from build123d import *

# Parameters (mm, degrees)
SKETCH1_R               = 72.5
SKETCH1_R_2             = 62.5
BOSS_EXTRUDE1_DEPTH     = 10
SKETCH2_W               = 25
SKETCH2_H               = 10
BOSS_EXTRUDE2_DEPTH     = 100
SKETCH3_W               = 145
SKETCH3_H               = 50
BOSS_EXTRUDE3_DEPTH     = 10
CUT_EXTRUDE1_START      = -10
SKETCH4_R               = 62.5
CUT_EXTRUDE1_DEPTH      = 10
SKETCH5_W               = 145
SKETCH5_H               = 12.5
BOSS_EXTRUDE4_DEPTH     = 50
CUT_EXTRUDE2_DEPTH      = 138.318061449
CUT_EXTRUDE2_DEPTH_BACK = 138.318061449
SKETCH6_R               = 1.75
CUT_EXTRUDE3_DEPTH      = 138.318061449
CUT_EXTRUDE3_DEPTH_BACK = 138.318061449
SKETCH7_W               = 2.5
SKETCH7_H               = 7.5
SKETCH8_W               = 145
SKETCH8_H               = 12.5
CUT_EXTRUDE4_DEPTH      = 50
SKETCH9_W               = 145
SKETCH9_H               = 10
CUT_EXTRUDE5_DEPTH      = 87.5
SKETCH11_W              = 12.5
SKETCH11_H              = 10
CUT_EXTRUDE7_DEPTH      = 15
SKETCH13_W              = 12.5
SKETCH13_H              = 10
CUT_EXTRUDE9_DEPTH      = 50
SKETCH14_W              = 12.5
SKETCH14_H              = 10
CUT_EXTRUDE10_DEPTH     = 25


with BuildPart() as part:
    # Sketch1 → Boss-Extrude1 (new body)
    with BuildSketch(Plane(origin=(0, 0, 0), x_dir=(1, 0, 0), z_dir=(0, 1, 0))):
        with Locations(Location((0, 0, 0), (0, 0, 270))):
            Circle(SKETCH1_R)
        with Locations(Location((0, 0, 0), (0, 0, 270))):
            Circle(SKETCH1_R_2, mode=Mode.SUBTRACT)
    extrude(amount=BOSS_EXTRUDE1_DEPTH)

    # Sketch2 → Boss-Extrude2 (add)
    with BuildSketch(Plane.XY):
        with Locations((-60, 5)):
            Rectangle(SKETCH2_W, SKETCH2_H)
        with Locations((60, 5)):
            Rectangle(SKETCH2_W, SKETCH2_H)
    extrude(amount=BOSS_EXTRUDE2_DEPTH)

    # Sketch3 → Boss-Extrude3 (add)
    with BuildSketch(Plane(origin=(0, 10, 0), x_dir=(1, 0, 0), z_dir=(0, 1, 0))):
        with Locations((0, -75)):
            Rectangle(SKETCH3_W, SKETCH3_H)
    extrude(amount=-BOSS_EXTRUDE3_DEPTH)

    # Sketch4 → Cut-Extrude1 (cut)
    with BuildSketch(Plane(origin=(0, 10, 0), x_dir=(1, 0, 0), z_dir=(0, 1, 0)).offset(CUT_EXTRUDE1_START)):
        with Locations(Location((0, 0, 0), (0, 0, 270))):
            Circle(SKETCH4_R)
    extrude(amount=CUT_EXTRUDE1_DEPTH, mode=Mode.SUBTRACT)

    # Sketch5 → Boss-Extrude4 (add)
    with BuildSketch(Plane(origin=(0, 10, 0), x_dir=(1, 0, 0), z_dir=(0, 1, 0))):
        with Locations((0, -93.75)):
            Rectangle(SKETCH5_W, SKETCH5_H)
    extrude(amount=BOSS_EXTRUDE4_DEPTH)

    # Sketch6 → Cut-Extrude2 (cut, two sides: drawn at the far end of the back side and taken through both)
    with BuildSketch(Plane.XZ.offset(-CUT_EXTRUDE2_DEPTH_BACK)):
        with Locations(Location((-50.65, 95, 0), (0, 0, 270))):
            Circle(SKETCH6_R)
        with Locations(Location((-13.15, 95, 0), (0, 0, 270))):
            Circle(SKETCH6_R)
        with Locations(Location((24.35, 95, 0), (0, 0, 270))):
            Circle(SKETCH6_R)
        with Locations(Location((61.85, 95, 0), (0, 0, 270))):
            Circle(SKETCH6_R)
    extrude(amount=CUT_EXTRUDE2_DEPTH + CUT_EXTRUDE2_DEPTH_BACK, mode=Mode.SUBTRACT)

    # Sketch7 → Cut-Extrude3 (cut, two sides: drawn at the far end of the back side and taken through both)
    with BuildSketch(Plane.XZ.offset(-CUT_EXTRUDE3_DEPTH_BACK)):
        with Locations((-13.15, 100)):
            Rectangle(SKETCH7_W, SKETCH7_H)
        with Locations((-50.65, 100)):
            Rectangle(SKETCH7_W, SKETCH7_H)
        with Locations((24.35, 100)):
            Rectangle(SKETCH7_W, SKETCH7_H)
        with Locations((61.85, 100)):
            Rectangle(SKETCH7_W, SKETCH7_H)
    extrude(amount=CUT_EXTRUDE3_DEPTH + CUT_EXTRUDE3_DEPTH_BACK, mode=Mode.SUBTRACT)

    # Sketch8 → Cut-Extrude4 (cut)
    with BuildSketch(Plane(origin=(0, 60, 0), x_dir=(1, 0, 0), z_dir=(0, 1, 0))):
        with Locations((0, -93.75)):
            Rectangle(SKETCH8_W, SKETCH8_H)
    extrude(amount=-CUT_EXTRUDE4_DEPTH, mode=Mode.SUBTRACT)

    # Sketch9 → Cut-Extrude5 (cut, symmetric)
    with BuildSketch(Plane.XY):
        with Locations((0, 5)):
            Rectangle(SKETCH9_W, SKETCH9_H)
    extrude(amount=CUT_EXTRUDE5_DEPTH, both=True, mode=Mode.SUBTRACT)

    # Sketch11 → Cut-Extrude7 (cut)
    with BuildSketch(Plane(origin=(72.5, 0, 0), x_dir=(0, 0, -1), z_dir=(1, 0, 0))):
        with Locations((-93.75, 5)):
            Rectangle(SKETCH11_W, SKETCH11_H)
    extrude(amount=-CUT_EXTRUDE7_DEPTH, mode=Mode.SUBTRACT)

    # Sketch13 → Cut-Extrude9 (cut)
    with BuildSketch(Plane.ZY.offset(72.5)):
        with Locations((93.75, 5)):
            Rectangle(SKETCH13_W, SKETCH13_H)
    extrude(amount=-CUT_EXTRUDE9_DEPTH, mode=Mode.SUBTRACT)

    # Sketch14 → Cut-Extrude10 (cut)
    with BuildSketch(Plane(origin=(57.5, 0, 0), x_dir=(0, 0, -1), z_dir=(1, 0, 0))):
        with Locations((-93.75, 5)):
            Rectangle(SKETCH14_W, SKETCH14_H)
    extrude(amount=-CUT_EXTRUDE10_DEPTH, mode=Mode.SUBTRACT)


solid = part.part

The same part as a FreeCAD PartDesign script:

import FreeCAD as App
import Part
import Sketcher

V = App.Vector
Q = App.Units.Quantity

doc = App.newDocument("Part")
body = doc.addObject("PartDesign::Body", "Body")

# Sketch on XZ plane
sketch1 = doc.addObject("Sketcher::SketchObject", "Sketch")
body.addObject(sketch1)
sketch1.AttachmentSupport = (doc.XZ_Plane, [""])
sketch1.MapMode = "FlatFace"
sketch1.addGeometry(Part.Circle(V(0, 0, 0), V(0, 0, 1), 72), False)
sketch1.addGeometry(Part.Circle(V(0, 0, 0), V(0, 0, 1), 62), False)
sketch1.addConstraint(Sketcher.Constraint("Coincident", 0, 3, -1, 1))
sketch1.addConstraint(Sketcher.Constraint("Coincident", 1, 3, -1, 1))
sketch1.addConstraint(Sketcher.Constraint("Diameter", 0, Q("145 mm")))
sketch1.addConstraint(Sketcher.Constraint("Diameter", 1, Q("125 mm")))
pad1 = doc.addObject("PartDesign::Pad", "Pad")
body.addObject(pad1)
pad1.Profile = sketch1
pad1.Length = 10
pad1.Reversed = True

# Sketch on XY plane
sketch2 = doc.addObject("Sketcher::SketchObject", "Sketch001")
body.addObject(sketch2)
sketch2.AttachmentSupport = (doc.XY_Plane, [""])
sketch2.MapMode = "FlatFace"
sketch2.addGeometry(Part.LineSegment(V(-72, 10, 0), V(-72, 0, 0)), False)
sketch2.addGeometry(Part.LineSegment(V(-72, 0, 0), V(-48, 0, 0)), False)
sketch2.addGeometry(Part.LineSegment(V(-48, 0, 0), V(-48, 10, 0)), False)
sketch2.addGeometry(Part.LineSegment(V(-48, 10, 0), V(-72, 10, 0)), False)
sketch2.addGeometry(Part.LineSegment(V(48, 10, 0), V(48, 0, 0)), False)
sketch2.addGeometry(Part.LineSegment(V(48, 0, 0), V(72, 0, 0)), False)
sketch2.addGeometry(Part.LineSegment(V(72, 0, 0), V(72, 10, 0)), False)
sketch2.addGeometry(Part.LineSegment(V(72, 10, 0), V(48, 10, 0)), False)
sketch2.addConstraint(Sketcher.Constraint("Coincident", 0, 2, 1, 1))
sketch2.addConstraint(Sketcher.Constraint("Coincident", 1, 2, 2, 1))
sketch2.addConstraint(Sketcher.Constraint("Coincident", 2, 2, 3, 1))
sketch2.addConstraint(Sketcher.Constraint("Coincident", 3, 2, 0, 1))
sketch2.addConstraint(Sketcher.Constraint("Coincident", 4, 2, 5, 1))
sketch2.addConstraint(Sketcher.Constraint("Coincident", 5, 2, 6, 1))
sketch2.addConstraint(Sketcher.Constraint("Coincident", 6, 2, 7, 1))
sketch2.addConstraint(Sketcher.Constraint("Coincident", 7, 2, 4, 1))
sketch2.addConstraint(Sketcher.Constraint("Vertical", 0))
sketch2.addConstraint(Sketcher.Constraint("Horizontal", 1))
sketch2.addConstraint(Sketcher.Constraint("Vertical", 2))
sketch2.addConstraint(Sketcher.Constraint("Horizontal", 3))
sketch2.addConstraint(Sketcher.Constraint("Vertical", 4))
sketch2.addConstraint(Sketcher.Constraint("Horizontal", 5))
sketch2.addConstraint(Sketcher.Constraint("Vertical", 6))
sketch2.addConstraint(Sketcher.Constraint("Horizontal", 7))
sketch2.addConstraint(Sketcher.Constraint("Symmetric", 1, 2, 4, 2, -1, 1))
sketch2.addConstraint(Sketcher.Constraint("Symmetric", 0, 2, 5, 2, -2))
sketch2.addConstraint(Sketcher.Constraint("Horizontal", 3, 2, 6, 2))
sketch2.addConstraint(Sketcher.Constraint("DistanceX", 1, 1, 1, 2, Q("25 mm")))
sketch2.addConstraint(Sketcher.Constraint("DistanceY", 0, 2, 0, 1, Q("10 mm")))
sketch2.addConstraint(Sketcher.Constraint("DistanceX", 1, 2, 4, 2, Q("95 mm")))
pad2 = doc.addObject("PartDesign::Pad", "Pad001")
body.addObject(pad2)
pad2.Profile = sketch2
pad2.Length = 100

# Sketch on XZ plane
sketch3 = doc.addObject("Sketcher::SketchObject", "Sketch002")
body.addObject(sketch3)
sketch3.AttachmentSupport = (doc.XZ_Plane, [""])
sketch3.MapMode = "FlatFace"
sketch3.AttachmentOffset = App.Placement(V(0, 0, -10), App.Rotation())
sketch3.addGeometry(Part.LineSegment(V(-72, 50, 0), V(-72, 100, 0)), False)
sketch3.addGeometry(Part.LineSegment(V(-72, 100, 0), V(72, 100, 0)), False)
sketch3.addGeometry(Part.LineSegment(V(72, 100, 0), V(72, 50, 0)), False)
sketch3.addGeometry(Part.LineSegment(V(72, 50, 0), V(-72, 50, 0)), False)
sketch3.addConstraint(Sketcher.Constraint("Coincident", 0, 2, 1, 1))
sketch3.addConstraint(Sketcher.Constraint("Coincident", 1, 2, 2, 1))
sketch3.addConstraint(Sketcher.Constraint("Coincident", 2, 2, 3, 1))
sketch3.addConstraint(Sketcher.Constraint("Coincident", 3, 2, 0, 1))
sketch3.addConstraint(Sketcher.Constraint("Vertical", 0))
sketch3.addConstraint(Sketcher.Constraint("Horizontal", 1))
sketch3.addConstraint(Sketcher.Constraint("Vertical", 2))
sketch3.addConstraint(Sketcher.Constraint("Horizontal", 3))
sketch3.addConstraint(Sketcher.Constraint("DistanceX", 1, 1, 1, 2, Q("145 mm")))
sketch3.addConstraint(Sketcher.Constraint("DistanceY", 0, 1, 0, 2, Q("50 mm")))
sketch3.addConstraint(Sketcher.Constraint("DistanceY", -1, 1, 0, 2, Q("100 mm")))
sketch3.addConstraint(Sketcher.Constraint("DistanceX", 0, 2, -1, 1, Q("72.5 mm")))
pad3 = doc.addObject("PartDesign::Pad", "Pad002")
body.addObject(pad3)
pad3.Profile = sketch3
pad3.Length = 10

# Sketch on XZ plane
sketch4 = doc.addObject("Sketcher::SketchObject", "Sketch003")
body.addObject(sketch4)
sketch4.AttachmentSupport = (doc.XZ_Plane, [""])
sketch4.MapMode = "FlatFace"
sketch4.addGeometry(Part.Circle(V(0, 0, 0), V(0, 0, 1), 62), False)
sketch4.addConstraint(Sketcher.Constraint("Coincident", 0, 3, -1, 1))
sketch4.addConstraint(Sketcher.Constraint("Diameter", 0, Q("125 mm")))
pocket1 = doc.addObject("PartDesign::Pocket", "Pocket")
body.addObject(pocket1)
pocket1.Profile = sketch4
pocket1.Length = 10

# Sketch on XZ plane
sketch5 = doc.addObject("Sketcher::SketchObject", "Sketch004")
body.addObject(sketch5)
sketch5.AttachmentSupport = (doc.XZ_Plane, [""])
sketch5.MapMode = "FlatFace"
sketch5.AttachmentOffset = App.Placement(V(0, 0, -10), App.Rotation())
sketch5.addGeometry(Part.LineSegment(V(-72, 88, 0), V(-72, 100, 0)), False)
sketch5.addGeometry(Part.LineSegment(V(-72, 100, 0), V(72, 100, 0)), False)
sketch5.addGeometry(Part.LineSegment(V(72, 100, 0), V(72, 88, 0)), False)
sketch5.addGeometry(Part.LineSegment(V(72, 88, 0), V(-72, 88, 0)), False)
sketch5.addConstraint(Sketcher.Constraint("Coincident", 0, 2, 1, 1))
sketch5.addConstraint(Sketcher.Constraint("Coincident", 1, 2, 2, 1))
sketch5.addConstraint(Sketcher.Constraint("Coincident", 2, 2, 3, 1))
sketch5.addConstraint(Sketcher.Constraint("Coincident", 3, 2, 0, 1))
sketch5.addConstraint(Sketcher.Constraint("Vertical", 0))
sketch5.addConstraint(Sketcher.Constraint("Horizontal", 1))
sketch5.addConstraint(Sketcher.Constraint("Vertical", 2))
sketch5.addConstraint(Sketcher.Constraint("Horizontal", 3))
sketch5.addConstraint(Sketcher.Constraint("DistanceX", 1, 1, 1, 2, Q("145 mm")))
sketch5.addConstraint(Sketcher.Constraint("DistanceY", 0, 1, 0, 2, Q("12.5 mm")))
sketch5.addConstraint(Sketcher.Constraint("DistanceY", -1, 1, 0, 2, Q("100 mm")))
sketch5.addConstraint(Sketcher.Constraint("DistanceX", 0, 2, -1, 1, Q("72.5 mm")))
pad4 = doc.addObject("PartDesign::Pad", "Pad003")
body.addObject(pad4)
pad4.Profile = sketch5
pad4.Length = 50
pad4.Reversed = True

# Sketch on XZ plane
sketch6 = doc.addObject("Sketcher::SketchObject", "Sketch005")
body.addObject(sketch6)
sketch6.AttachmentSupport = (doc.XZ_Plane, [""])
sketch6.MapMode = "FlatFace"
sketch6.addGeometry(Part.Circle(V(-50.6, 95, 0), V(0, 0, 1), 1.8), False)
sketch6.addGeometry(Part.Circle(V(-13.2, 95, 0), V(0, 0, 1), 1.8), False)
sketch6.addGeometry(Part.Circle(V(24.4, 95, 0), V(0, 0, 1), 1.8), False)
sketch6.addGeometry(Part.Circle(V(61.9, 95, 0), V(0, 0, 1), 1.8), False)
sketch6.addConstraint(Sketcher.Constraint("Equal", 0, 1))
sketch6.addConstraint(Sketcher.Constraint("Equal", 1, 2))
sketch6.addConstraint(Sketcher.Constraint("Equal", 2, 3))
sketch6.addConstraint(Sketcher.Constraint("Horizontal", 0, 3, 1, 3))
sketch6.addConstraint(Sketcher.Constraint("Horizontal", 1, 3, 2, 3))
sketch6.addConstraint(Sketcher.Constraint("Horizontal", 2, 3, 3, 3))
sketch6.addConstraint(Sketcher.Constraint("Diameter", 0, Q("3.5 mm")))
sketch6.addConstraint(Sketcher.Constraint("DistanceY", -1, 1, 0, 3, Q("95 mm")))
sketch6.addConstraint(Sketcher.Constraint("DistanceX", 0, 3, 2, 3, Q("75 mm")))
sketch6.addConstraint(Sketcher.Constraint("DistanceX", 1, 3, 3, 3, Q("75 mm")))
sketch6.addConstraint(Sketcher.Constraint("DistanceX", 0, 3, 1, 3, Q("37.5 mm")))
sketch6.addConstraint(Sketcher.Constraint("DistanceX", 0, 3, -1, 1, Q("50.65 mm")))
pocket2 = doc.addObject("PartDesign::Pocket", "Pocket001")
body.addObject(pocket2)
pocket2.Profile = sketch6
pocket2.Type = "ThroughAll"
pocket2.Midplane = True

# Sketch on XZ plane
sketch7 = doc.addObject("Sketcher::SketchObject", "Sketch006")
body.addObject(sketch7)
sketch7.AttachmentSupport = (doc.XZ_Plane, [""])
sketch7.MapMode = "FlatFace"
sketch7.addGeometry(Part.LineSegment(V(-14.4, 103.8, 0), V(-14.4, 96.2, 0)), False)
sketch7.addGeometry(Part.LineSegment(V(-14.4, 96.2, 0), V(-11.9, 96.2, 0)), False)
sketch7.addGeometry(Part.LineSegment(V(-11.9, 96.2, 0), V(-11.9, 103.8, 0)), False)
sketch7.addGeometry(Part.LineSegment(V(-11.9, 103.8, 0), V(-14.4, 103.8, 0)), False)
sketch7.addGeometry(Part.LineSegment(V(-51.9, 103.8, 0), V(-51.9, 96.2, 0)), False)
sketch7.addGeometry(Part.LineSegment(V(-51.9, 96.2, 0), V(-49.4, 96.2, 0)), False)
sketch7.addGeometry(Part.LineSegment(V(-49.4, 96.2, 0), V(-49.4, 103.8, 0)), False)
sketch7.addGeometry(Part.LineSegment(V(-49.4, 103.8, 0), V(-51.9, 103.8, 0)), False)
sketch7.addGeometry(Part.LineSegment(V(23.1, 103.8, 0), V(23.1, 96.2, 0)), False)
sketch7.addGeometry(Part.LineSegment(V(23.1, 96.2, 0), V(25.6, 96.2, 0)), False)
sketch7.addGeometry(Part.LineSegment(V(25.6, 96.2, 0), V(25.6, 103.8, 0)), False)
sketch7.addGeometry(Part.LineSegment(V(25.6, 103.8, 0), V(23.1, 103.8, 0)), False)
sketch7.addGeometry(Part.LineSegment(V(60.6, 103.8, 0), V(60.6, 96.2, 0)), False)
sketch7.addGeometry(Part.LineSegment(V(60.6, 96.2, 0), V(63.1, 96.2, 0)), False)
sketch7.addGeometry(Part.LineSegment(V(63.1, 96.2, 0), V(63.1, 103.8, 0)), False)
sketch7.addGeometry(Part.LineSegment(V(63.1, 103.8, 0), V(60.6, 103.8, 0)), False)
sketch7.addConstraint(Sketcher.Constraint("Coincident", 0, 2, 1, 1))
sketch7.addConstraint(Sketcher.Constraint("Coincident", 1, 2, 2, 1))
sketch7.addConstraint(Sketcher.Constraint("Coincident", 2, 2, 3, 1))
sketch7.addConstraint(Sketcher.Constraint("Coincident", 3, 2, 0, 1))
sketch7.addConstraint(Sketcher.Constraint("Coincident", 4, 2, 5, 1))
sketch7.addConstraint(Sketcher.Constraint("Coincident", 5, 2, 6, 1))
sketch7.addConstraint(Sketcher.Constraint("Coincident", 6, 2, 7, 1))
sketch7.addConstraint(Sketcher.Constraint("Coincident", 7, 2, 4, 1))
sketch7.addConstraint(Sketcher.Constraint("Coincident", 8, 2, 9, 1))
sketch7.addConstraint(Sketcher.Constraint("Coincident", 9, 2, 10, 1))
sketch7.addConstraint(Sketcher.Constraint("Coincident", 10, 2, 11, 1))
sketch7.addConstraint(Sketcher.Constraint("Coincident", 11, 2, 8, 1))
sketch7.addConstraint(Sketcher.Constraint("Coincident", 12, 2, 13, 1))
sketch7.addConstraint(Sketcher.Constraint("Coincident", 13, 2, 14, 1))
sketch7.addConstraint(Sketcher.Constraint("Coincident", 14, 2, 15, 1))
sketch7.addConstraint(Sketcher.Constraint("Coincident", 15, 2, 12, 1))
sketch7.addConstraint(Sketcher.Constraint("Vertical", 0))
sketch7.addConstraint(Sketcher.Constraint("Horizontal", 1))
sketch7.addConstraint(Sketcher.Constraint("Vertical", 2))
sketch7.addConstraint(Sketcher.Constraint("Horizontal", 3))
sketch7.addConstraint(Sketcher.Constraint("Vertical", 4))
sketch7.addConstraint(Sketcher.Constraint("Horizontal", 5))
sketch7.addConstraint(Sketcher.Constraint("Vertical", 6))
sketch7.addConstraint(Sketcher.Constraint("Horizontal", 7))
sketch7.addConstraint(Sketcher.Constraint("Vertical", 8))
sketch7.addConstraint(Sketcher.Constraint("Horizontal", 9))
sketch7.addConstraint(Sketcher.Constraint("Vertical", 10))
sketch7.addConstraint(Sketcher.Constraint("Horizontal", 11))
sketch7.addConstraint(Sketcher.Constraint("Vertical", 12))
sketch7.addConstraint(Sketcher.Constraint("Horizontal", 13))
sketch7.addConstraint(Sketcher.Constraint("Vertical", 14))
sketch7.addConstraint(Sketcher.Constraint("Horizontal", 15))
sketch7.addConstraint(Sketcher.Constraint("Horizontal", 1, 2, 4, 2))
sketch7.addConstraint(Sketcher.Constraint("Horizontal", 3, 2, 6, 2))
sketch7.addConstraint(Sketcher.Constraint("Horizontal", 5, 2, 8, 2))
sketch7.addConstraint(Sketcher.Constraint("Horizontal", 7, 2, 10, 2))
sketch7.addConstraint(Sketcher.Constraint("Horizontal", 9, 2, 12, 2))
sketch7.addConstraint(Sketcher.Constraint("Horizontal", 11, 2, 14, 2))
sketch7.addConstraint(Sketcher.Constraint("Equal", 3, 5))
sketch7.addConstraint(Sketcher.Constraint("Equal", 7, 9))
sketch7.addConstraint(Sketcher.Constraint("Equal", 11, 13))
sketch7.addConstraint(Sketcher.Constraint("DistanceX", 1, 1, 1, 2, Q("2.5 mm")))
sketch7.addConstraint(Sketcher.Constraint("DistanceY", 0, 2, 0, 1, Q("7.5 mm")))
sketch7.addConstraint(Sketcher.Constraint("DistanceX", 4, 2, 1, 2, Q("40 mm")))
sketch7.addConstraint(Sketcher.Constraint("DistanceX", 1, 2, 8, 2, Q("35 mm")))
sketch7.addConstraint(Sketcher.Constraint("DistanceX", 9, 2, 12, 2, Q("35 mm")))
sketch7.addConstraint(Sketcher.Constraint("DistanceX", 0, 2, -1, 1, Q("14.4 mm")))
sketch7.addConstraint(Sketcher.Constraint("DistanceY", -1, 1, 0, 2, Q("96.25 mm")))
pocket3 = doc.addObject("PartDesign::Pocket", "Pocket002")
body.addObject(pocket3)
pocket3.Profile = sketch7
pocket3.Type = "ThroughAll"
pocket3.Midplane = True

# Sketch on XZ plane
sketch8 = doc.addObject("Sketcher::SketchObject", "Sketch007")
body.addObject(sketch8)
sketch8.AttachmentSupport = (doc.XZ_Plane, [""])
sketch8.MapMode = "FlatFace"
sketch8.AttachmentOffset = App.Placement(V(0, 0, -60), App.Rotation())
sketch8.addGeometry(Part.LineSegment(V(-72, 88, 0), V(-72, 100, 0)), False)
sketch8.addGeometry(Part.LineSegment(V(-72, 100, 0), V(72, 100, 0)), False)
sketch8.addGeometry(Part.LineSegment(V(72, 100, 0), V(72, 88, 0)), False)
sketch8.addGeometry(Part.LineSegment(V(72, 88, 0), V(-72, 88, 0)), False)
sketch8.addConstraint(Sketcher.Constraint("Coincident", 0, 2, 1, 1))
sketch8.addConstraint(Sketcher.Constraint("Coincident", 1, 2, 2, 1))
sketch8.addConstraint(Sketcher.Constraint("Coincident", 2, 2, 3, 1))
sketch8.addConstraint(Sketcher.Constraint("Coincident", 3, 2, 0, 1))
sketch8.addConstraint(Sketcher.Constraint("Vertical", 0))
sketch8.addConstraint(Sketcher.Constraint("Horizontal", 1))
sketch8.addConstraint(Sketcher.Constraint("Vertical", 2))
sketch8.addConstraint(Sketcher.Constraint("Horizontal", 3))
sketch8.addConstraint(Sketcher.Constraint("DistanceX", 1, 1, 1, 2, Q("145 mm")))
sketch8.addConstraint(Sketcher.Constraint("DistanceY", 0, 1, 0, 2, Q("12.5 mm")))
sketch8.addConstraint(Sketcher.Constraint("DistanceY", -1, 1, 0, 2, Q("100 mm")))
sketch8.addConstraint(Sketcher.Constraint("DistanceX", 0, 2, -1, 1, Q("72.5 mm")))
pocket4 = doc.addObject("PartDesign::Pocket", "Pocket003")
body.addObject(pocket4)
pocket4.Profile = sketch8
pocket4.Length = 50
pocket4.Reversed = True

# Sketch on XY plane
sketch9 = doc.addObject("Sketcher::SketchObject", "Sketch008")
body.addObject(sketch9)
sketch9.AttachmentSupport = (doc.XY_Plane, [""])
sketch9.MapMode = "FlatFace"
sketch9.addGeometry(Part.LineSegment(V(-72, 10, 0), V(-72, 0, 0)), False)
sketch9.addGeometry(Part.LineSegment(V(-72, 0, 0), V(72, 0, 0)), False)
sketch9.addGeometry(Part.LineSegment(V(72, 0, 0), V(72, 10, 0)), False)
sketch9.addGeometry(Part.LineSegment(V(72, 10, 0), V(-72, 10, 0)), False)
sketch9.addConstraint(Sketcher.Constraint("Coincident", 0, 2, 1, 1))
sketch9.addConstraint(Sketcher.Constraint("Coincident", 1, 2, 2, 1))
sketch9.addConstraint(Sketcher.Constraint("Coincident", 2, 2, 3, 1))
sketch9.addConstraint(Sketcher.Constraint("Coincident", 3, 2, 0, 1))
sketch9.addConstraint(Sketcher.Constraint("Vertical", 0))
sketch9.addConstraint(Sketcher.Constraint("Horizontal", 1))
sketch9.addConstraint(Sketcher.Constraint("Vertical", 2))
sketch9.addConstraint(Sketcher.Constraint("Horizontal", 3))
sketch9.addConstraint(Sketcher.Constraint("Symmetric", 0, 2, 1, 2, -1, 1))
sketch9.addConstraint(Sketcher.Constraint("DistanceX", 1, 1, 1, 2, Q("145 mm")))
sketch9.addConstraint(Sketcher.Constraint("DistanceY", 0, 2, 0, 1, Q("10 mm")))
pocket5 = doc.addObject("PartDesign::Pocket", "Pocket004")
body.addObject(pocket5)
pocket5.Profile = sketch9
pocket5.Length = 175
pocket5.Midplane = True

# Sketch on YZ plane
sketch10 = doc.addObject("Sketcher::SketchObject", "Sketch009")
body.addObject(sketch10)
sketch10.AttachmentSupport = (doc.YZ_Plane, [""])
sketch10.MapMode = "FlatFace"
sketch10.AttachmentOffset = App.Placement(V(0, 0, 72.5), App.Rotation())
sketch10.addGeometry(Part.LineSegment(V(10, 100, 0), V(0, 100, 0)), False)
sketch10.addGeometry(Part.LineSegment(V(0, 100, 0), V(0, 88, 0)), False)
sketch10.addGeometry(Part.LineSegment(V(0, 88, 0), V(10, 88, 0)), False)
sketch10.addGeometry(Part.LineSegment(V(10, 88, 0), V(10, 100, 0)), False)
sketch10.addConstraint(Sketcher.Constraint("Coincident", 0, 2, 1, 1))
sketch10.addConstraint(Sketcher.Constraint("Coincident", 1, 2, 2, 1))
sketch10.addConstraint(Sketcher.Constraint("Coincident", 2, 2, 3, 1))
sketch10.addConstraint(Sketcher.Constraint("Coincident", 3, 2, 0, 1))
sketch10.addConstraint(Sketcher.Constraint("Horizontal", 0))
sketch10.addConstraint(Sketcher.Constraint("Vertical", 1))
sketch10.addConstraint(Sketcher.Constraint("Horizontal", 2))
sketch10.addConstraint(Sketcher.Constraint("Vertical", 3))
sketch10.addConstraint(Sketcher.Constraint("PointOnObject", 0, 2, -2))
sketch10.addConstraint(Sketcher.Constraint("DistanceX", 0, 2, 0, 1, Q("10 mm")))
sketch10.addConstraint(Sketcher.Constraint("DistanceY", 1, 2, 1, 1, Q("12.5 mm")))
sketch10.addConstraint(Sketcher.Constraint("DistanceY", -1, 1, 0, 2, Q("100 mm")))
pocket6 = doc.addObject("PartDesign::Pocket", "Pocket005")
body.addObject(pocket6)
pocket6.Profile = sketch10
pocket6.Length = 15

# Sketch on YZ plane
sketch11 = doc.addObject("Sketcher::SketchObject", "Sketch010")
body.addObject(sketch11)
sketch11.AttachmentSupport = (doc.YZ_Plane, [""])
sketch11.MapMode = "FlatFace"
sketch11.AttachmentOffset = App.Placement(V(0, 0, -72.5), App.Rotation())
sketch11.addGeometry(Part.LineSegment(V(10, 88, 0), V(0, 88, 0)), False)
sketch11.addGeometry(Part.LineSegment(V(0, 88, 0), V(0, 100, 0)), False)
sketch11.addGeometry(Part.LineSegment(V(0, 100, 0), V(10, 100, 0)), False)
sketch11.addGeometry(Part.LineSegment(V(10, 100, 0), V(10, 88, 0)), False)
sketch11.addConstraint(Sketcher.Constraint("Coincident", 0, 2, 1, 1))
sketch11.addConstraint(Sketcher.Constraint("Coincident", 1, 2, 2, 1))
sketch11.addConstraint(Sketcher.Constraint("Coincident", 2, 2, 3, 1))
sketch11.addConstraint(Sketcher.Constraint("Coincident", 3, 2, 0, 1))
sketch11.addConstraint(Sketcher.Constraint("Horizontal", 0))
sketch11.addConstraint(Sketcher.Constraint("Vertical", 1))
sketch11.addConstraint(Sketcher.Constraint("Horizontal", 2))
sketch11.addConstraint(Sketcher.Constraint("Vertical", 3))
sketch11.addConstraint(Sketcher.Constraint("PointOnObject", 0, 2, -2))
sketch11.addConstraint(Sketcher.Constraint("DistanceX", 0, 2, 0, 1, Q("10 mm")))
sketch11.addConstraint(Sketcher.Constraint("DistanceY", 1, 1, 1, 2, Q("12.5 mm")))
sketch11.addConstraint(Sketcher.Constraint("DistanceY", -1, 1, 1, 2, Q("100 mm")))
pocket7 = doc.addObject("PartDesign::Pocket", "Pocket006")
body.addObject(pocket7)
pocket7.Profile = sketch11
pocket7.Length = 50
pocket7.Reversed = True

# Sketch on YZ plane
sketch12 = doc.addObject("Sketcher::SketchObject", "Sketch011")
body.addObject(sketch12)
sketch12.AttachmentSupport = (doc.YZ_Plane, [""])
sketch12.MapMode = "FlatFace"
sketch12.AttachmentOffset = App.Placement(V(0, 0, 57.5), App.Rotation())
sketch12.addGeometry(Part.LineSegment(V(10, 100, 0), V(0, 100, 0)), False)
sketch12.addGeometry(Part.LineSegment(V(0, 100, 0), V(0, 88, 0)), False)
sketch12.addGeometry(Part.LineSegment(V(0, 88, 0), V(10, 88, 0)), False)
sketch12.addGeometry(Part.LineSegment(V(10, 88, 0), V(10, 100, 0)), False)
sketch12.addConstraint(Sketcher.Constraint("Coincident", 0, 2, 1, 1))
sketch12.addConstraint(Sketcher.Constraint("Coincident", 1, 2, 2, 1))
sketch12.addConstraint(Sketcher.Constraint("Coincident", 2, 2, 3, 1))
sketch12.addConstraint(Sketcher.Constraint("Coincident", 3, 2, 0, 1))
sketch12.addConstraint(Sketcher.Constraint("Horizontal", 0))
sketch12.addConstraint(Sketcher.Constraint("Vertical", 1))
sketch12.addConstraint(Sketcher.Constraint("Horizontal", 2))
sketch12.addConstraint(Sketcher.Constraint("Vertical", 3))
sketch12.addConstraint(Sketcher.Constraint("PointOnObject", 0, 2, -2))
sketch12.addConstraint(Sketcher.Constraint("DistanceX", 0, 2, 0, 1, Q("10 mm")))
sketch12.addConstraint(Sketcher.Constraint("DistanceY", 1, 2, 1, 1, Q("12.5 mm")))
sketch12.addConstraint(Sketcher.Constraint("DistanceY", -1, 1, 0, 2, Q("100 mm")))
pocket8 = doc.addObject("PartDesign::Pocket", "Pocket007")
body.addObject(pocket8)
pocket8.Profile = sketch12
pocket8.Length = 25

doc.recompute()
